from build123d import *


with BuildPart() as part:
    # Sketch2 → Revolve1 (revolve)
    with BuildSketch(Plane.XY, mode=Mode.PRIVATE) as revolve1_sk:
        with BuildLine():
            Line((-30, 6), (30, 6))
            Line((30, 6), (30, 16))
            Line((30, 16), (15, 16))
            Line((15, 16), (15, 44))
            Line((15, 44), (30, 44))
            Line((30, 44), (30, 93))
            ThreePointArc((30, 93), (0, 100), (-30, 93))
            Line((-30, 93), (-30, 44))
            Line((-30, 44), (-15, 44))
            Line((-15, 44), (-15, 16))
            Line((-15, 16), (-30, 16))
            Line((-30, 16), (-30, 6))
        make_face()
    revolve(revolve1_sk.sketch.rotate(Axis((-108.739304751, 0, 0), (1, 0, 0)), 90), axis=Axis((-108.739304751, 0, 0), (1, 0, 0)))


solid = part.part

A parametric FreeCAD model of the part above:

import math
import FreeCAD as App
import Part
import Sketcher
Q = App.Units.Quantity

doc = App.newDocument("Part")
body = doc.addObject("PartDesign::Body", "Body")

sketch1 = body.newObject("Sketcher::SketchObject", "Sketch")
sketch1.AttachmentSupport = (doc.getObject("XY_Plane"), [""])
sketch1.MapMode = "FlatFace"
sketch1.addGeometry([
    Part.LineSegment(App.Vector(-30, 6, 0), App.Vector(30, 6, 0)),
    Part.LineSegment(App.Vector(30, 6, 0), App.Vector(30, 16, 0)),
    Part.LineSegment(App.Vector(30, 16, 0), App.Vector(15, 16, 0)),
    Part.LineSegment(App.Vector(15, 16, 0), App.Vector(15, 44, 0)),
    Part.LineSegment(App.Vector(15, 44, 0), App.Vector(30, 44, 0)),
    Part.LineSegment(App.Vector(30, 44, 0), App.Vector(30, 93, 0)),
    Part.ArcOfCircle(Part.Circle(App.Vector(0, 32, 0), App.Vector(0, 0, 1), 68), math.radians(64), math.radians(116)),
    Part.LineSegment(App.Vector(-30, 93, 0), App.Vector(-30, 44, 0)),
    Part.LineSegment(App.Vector(-30, 44, 0), App.Vector(-15, 44, 0)),
    Part.LineSegment(App.Vector(-15, 44, 0), App.Vector(-15, 16, 0)),
    Part.LineSegment(App.Vector(-15, 16, 0), App.Vector(-30, 16, 0)),
    Part.LineSegment(App.Vector(-30, 16, 0), App.Vector(-30, 6, 0)),
], False)
sketch1.addConstraint([
    Sketcher.Constraint("Coincident", 0, 2, 1, 1),
    Sketcher.Constraint("Coincident", 1, 2, 2, 1),
    Sketcher.Constraint("Coincident", 2, 2, 3, 1),
    Sketcher.Constraint("Coincident", 3, 2, 4, 1),
    Sketcher.Constraint("Coincident", 4, 2, 5, 1),
    Sketcher.Constraint("Coincident", 5, 2, 6, 1),
    Sketcher.Constraint("Coincident", 6, 2, 7, 1),
    Sketcher.Constraint("Coincident", 7, 2, 8, 1),
    Sketcher.Constraint("Coincident", 8, 2, 9, 1),
    Sketcher.Constraint("Coincident", 9, 2, 10, 1),
    Sketcher.Constraint("Coincident", 10, 2, 11, 1),
    Sketcher.Constraint("Coincident", 11, 2, 0, 1),
    Sketcher.Constraint("Horizontal", 0),
    Sketcher.Constraint("Vertical", 1),
    Sketcher.Constraint("Horizontal", 2),
    Sketcher.Constraint("Vertical", 3),
    Sketcher.Constraint("Horizontal", 4),
    Sketcher.Constraint("Vertical", 5),
    Sketcher.Constraint("Vertical", 7),
    Sketcher.Constraint("Horizontal", 8),
    Sketcher.Constraint("Vertical", 9),
    Sketcher.Constraint("Horizontal", 10),
    Sketcher.Constraint("Vertical", 11),
    Sketcher.Constraint("Symmetric", 5, 2, 6, 2, -2),
    Sketcher.Constraint("Symmetric", 3, 2, 8, 2, -2),
    Sketcher.Constraint("Symmetric", 1, 2, 10, 2, -2),
    Sketcher.Constraint("Vertical", 1, 2, 4, 2),
    Sketcher.Constraint("DistanceX", 0, 1, 0, 2, Q("60 mm")),
    Sketcher.Constraint("DistanceX", 2, 2, 2, 1, Q("15 mm")),
    Sketcher.Constraint("DistanceY", 1, 1, 1, 2, Q("10 mm")),
    Sketcher.Constraint("DistanceY", 3, 1, 3, 2, Q("28 mm")),
    Sketcher.Constraint("DistanceY", 5, 1, 5, 2, Q("49 mm")),
    Sketcher.Constraint("DistanceY", -1, 1, 0, 2, Q("6 mm")),
    Sketcher.Constraint("Radius", 6, Q("67.785714 mm")),
])
revolution = body.newObject("PartDesign::Revolution", "Revolution")
revolution.Profile = sketch1
revolution.ReferenceAxis = (sketch1, ["H_Axis"])
revolution.Angle = 360

doc.recompute()
